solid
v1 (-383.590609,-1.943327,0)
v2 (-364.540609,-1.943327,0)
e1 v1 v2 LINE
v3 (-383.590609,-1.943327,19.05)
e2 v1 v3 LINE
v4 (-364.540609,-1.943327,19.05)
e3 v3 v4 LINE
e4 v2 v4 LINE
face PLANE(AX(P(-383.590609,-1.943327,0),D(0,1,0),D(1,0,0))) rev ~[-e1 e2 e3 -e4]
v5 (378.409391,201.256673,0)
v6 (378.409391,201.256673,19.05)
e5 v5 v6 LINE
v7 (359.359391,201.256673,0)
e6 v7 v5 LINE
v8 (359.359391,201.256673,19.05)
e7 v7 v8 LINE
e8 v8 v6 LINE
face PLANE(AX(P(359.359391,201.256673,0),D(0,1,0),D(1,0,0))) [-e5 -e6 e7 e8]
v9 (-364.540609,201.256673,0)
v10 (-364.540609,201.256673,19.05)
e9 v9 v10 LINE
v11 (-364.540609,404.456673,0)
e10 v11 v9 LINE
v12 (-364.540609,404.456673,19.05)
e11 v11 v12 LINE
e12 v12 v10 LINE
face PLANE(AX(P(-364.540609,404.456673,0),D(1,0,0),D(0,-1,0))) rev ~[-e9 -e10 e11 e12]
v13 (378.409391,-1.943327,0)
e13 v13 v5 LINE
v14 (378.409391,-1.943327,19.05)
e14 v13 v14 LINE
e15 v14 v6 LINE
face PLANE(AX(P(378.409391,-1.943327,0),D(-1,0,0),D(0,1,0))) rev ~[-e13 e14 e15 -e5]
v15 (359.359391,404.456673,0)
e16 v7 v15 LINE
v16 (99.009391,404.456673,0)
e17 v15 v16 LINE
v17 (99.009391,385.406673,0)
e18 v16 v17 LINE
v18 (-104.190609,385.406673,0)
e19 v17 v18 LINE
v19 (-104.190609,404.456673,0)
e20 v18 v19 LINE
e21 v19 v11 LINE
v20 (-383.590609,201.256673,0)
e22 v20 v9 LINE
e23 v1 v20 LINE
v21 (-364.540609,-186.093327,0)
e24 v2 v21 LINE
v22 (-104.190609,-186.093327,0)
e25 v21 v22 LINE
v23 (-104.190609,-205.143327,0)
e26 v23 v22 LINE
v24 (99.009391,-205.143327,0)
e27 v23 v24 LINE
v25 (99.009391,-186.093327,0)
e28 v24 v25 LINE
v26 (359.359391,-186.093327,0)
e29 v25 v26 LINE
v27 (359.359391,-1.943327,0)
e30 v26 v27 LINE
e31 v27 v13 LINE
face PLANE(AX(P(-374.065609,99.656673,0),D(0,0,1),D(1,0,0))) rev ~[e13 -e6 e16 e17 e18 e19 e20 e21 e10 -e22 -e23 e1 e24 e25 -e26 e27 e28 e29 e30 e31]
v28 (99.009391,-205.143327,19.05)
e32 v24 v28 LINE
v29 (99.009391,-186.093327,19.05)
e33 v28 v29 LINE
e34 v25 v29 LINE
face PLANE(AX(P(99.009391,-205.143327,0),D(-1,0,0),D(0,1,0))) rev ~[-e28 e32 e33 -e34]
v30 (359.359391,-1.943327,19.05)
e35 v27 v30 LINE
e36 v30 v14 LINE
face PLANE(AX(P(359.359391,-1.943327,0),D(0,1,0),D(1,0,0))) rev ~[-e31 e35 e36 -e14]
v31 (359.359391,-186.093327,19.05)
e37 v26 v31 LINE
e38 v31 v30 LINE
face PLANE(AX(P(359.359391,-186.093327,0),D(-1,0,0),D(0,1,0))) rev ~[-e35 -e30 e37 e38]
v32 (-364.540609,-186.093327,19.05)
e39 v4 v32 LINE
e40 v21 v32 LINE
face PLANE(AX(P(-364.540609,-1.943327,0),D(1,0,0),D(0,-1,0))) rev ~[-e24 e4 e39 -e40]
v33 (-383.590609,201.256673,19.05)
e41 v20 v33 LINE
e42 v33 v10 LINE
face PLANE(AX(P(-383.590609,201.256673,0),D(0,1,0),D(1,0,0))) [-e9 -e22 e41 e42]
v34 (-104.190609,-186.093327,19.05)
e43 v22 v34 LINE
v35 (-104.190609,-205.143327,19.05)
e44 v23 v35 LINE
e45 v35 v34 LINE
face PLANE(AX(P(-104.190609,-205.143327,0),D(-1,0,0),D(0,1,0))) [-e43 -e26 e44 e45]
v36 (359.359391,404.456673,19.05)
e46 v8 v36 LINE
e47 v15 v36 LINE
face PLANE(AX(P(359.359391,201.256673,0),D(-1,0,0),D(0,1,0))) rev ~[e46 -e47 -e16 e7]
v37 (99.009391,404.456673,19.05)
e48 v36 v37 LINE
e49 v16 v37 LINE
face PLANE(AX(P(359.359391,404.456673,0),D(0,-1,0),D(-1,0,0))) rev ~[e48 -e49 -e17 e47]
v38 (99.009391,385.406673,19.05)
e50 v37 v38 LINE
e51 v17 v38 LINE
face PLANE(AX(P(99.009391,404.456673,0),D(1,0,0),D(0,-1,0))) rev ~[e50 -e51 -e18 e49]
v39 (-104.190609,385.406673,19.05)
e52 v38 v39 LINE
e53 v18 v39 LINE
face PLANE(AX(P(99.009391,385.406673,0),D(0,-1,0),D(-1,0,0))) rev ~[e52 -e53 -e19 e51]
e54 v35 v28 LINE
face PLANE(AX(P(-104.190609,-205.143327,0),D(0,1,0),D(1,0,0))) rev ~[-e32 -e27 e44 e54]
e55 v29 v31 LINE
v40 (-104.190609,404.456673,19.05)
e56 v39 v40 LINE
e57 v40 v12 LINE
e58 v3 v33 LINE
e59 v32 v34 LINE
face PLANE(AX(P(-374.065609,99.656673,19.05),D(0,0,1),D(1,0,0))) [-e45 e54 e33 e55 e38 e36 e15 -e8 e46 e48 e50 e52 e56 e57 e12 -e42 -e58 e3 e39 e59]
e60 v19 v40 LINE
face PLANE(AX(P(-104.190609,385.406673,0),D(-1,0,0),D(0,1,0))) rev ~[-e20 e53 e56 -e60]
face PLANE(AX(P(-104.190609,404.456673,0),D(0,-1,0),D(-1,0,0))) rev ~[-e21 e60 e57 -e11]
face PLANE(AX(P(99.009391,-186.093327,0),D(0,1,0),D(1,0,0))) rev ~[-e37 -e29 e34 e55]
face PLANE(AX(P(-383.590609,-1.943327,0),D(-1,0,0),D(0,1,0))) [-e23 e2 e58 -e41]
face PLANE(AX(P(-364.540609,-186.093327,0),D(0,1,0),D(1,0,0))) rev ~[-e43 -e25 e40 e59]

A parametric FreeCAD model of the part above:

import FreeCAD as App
import Part
import Sketcher
from FreeCAD import Vector
Q = App.Units.Quantity


def add_polygon(sketch, points):
    """Adds a closed chain of lines whose ends are joined by coincident constraints."""
    first, n = sketch.GeometryCount, len(points)
    for a, b in zip(points, points[1:] + points[:1]):
        sketch.addGeometry(Part.LineSegment(App.Vector(*a, 0), App.Vector(*b, 0)), False)
    for i in range(n):
        sketch.addConstraint(Sketcher.Constraint("Coincident", first + i, 2, first + (i + 1) % n, 1))

doc = App.newDocument("Part")
params = doc.addObject("Spreadsheet::Sheet", "Params")
for row, (alias, value) in enumerate([
    ("sketch1_width", "8 in"),
    ("sketch1_width2", "0.75 in"),
    ("pad1_length", "0.75 in"),
], start=1):
    params.set(f"A{row}", alias)
    params.set(f"B{row}", "=" + value)
    params.setAlias(f"B{row}", alias)

body = doc.addObject("PartDesign::Body", "Body")

sketch1 = body.newObject("Sketcher::SketchObject", "Sketch")
sketch1.AttachmentSupport = (doc.getObject("XY_Plane"), [""])
sketch1.MapMode = "FlatFace"
add_polygon(sketch1, [(-383.590609, 201.256673), (-383.590609, -1.943327), (-364.540609, -1.943327), (-364.540609, -186.093327), (-104.190609, -186.093327), (-104.190609, -205.143327), (99.009391, -205.143327), (99.009391, -186.093327), (359.359391, -186.093327), (359.359391, -1.943327), (378.409391, -1.943327), (378.409391, 201.256673), (359.359391, 201.256673), (359.359391, 404.456673), (99.009391, 404.456673), (99.009391, 385.406673), (-104.190609, 385.406673), (-104.190609, 404.456673), (-364.540609, 404.456673), (-364.540609, 201.256673)])
sketch1.addConstraint([
    Sketcher.Constraint("Vertical", 0),
    Sketcher.Constraint("Horizontal", 1),
    Sketcher.Constraint("Vertical", 2),
    Sketcher.Constraint("Horizontal", 3),
    Sketcher.Constraint("Vertical", 4),
    Sketcher.Constraint("Horizontal", 5),
    Sketcher.Constraint("Vertical", 6),
    Sketcher.Constraint("Horizontal", 7),
    Sketcher.Constraint("Vertical", 8),
    Sketcher.Constraint("Horizontal", 9),
    Sketcher.Constraint("Vertical", 10),
    Sketcher.Constraint("Horizontal", 11),
    Sketcher.Constraint("Vertical", 12),
    Sketcher.Constraint("Horizontal", 13),
    Sketcher.Constraint("Vertical", 14),
    Sketcher.Constraint("Horizontal", 15),
    Sketcher.Constraint("Vertical", 16),
    Sketcher.Constraint("Horizontal", 17),
    Sketcher.Constraint("Vertical", 18),
    Sketcher.Constraint("Horizontal", 19),
    Sketcher.Constraint("Horizontal", 3, 2, 6, 2),
    Sketcher.Constraint("Horizontal", 1, 2, 8, 2),
    Sketcher.Constraint("Horizontal", 13, 2, 16, 2),
    Sketcher.Constraint("Horizontal", 11, 2, 18, 2),
    Sketcher.Constraint("Vertical", 8, 2, 11, 2),
    Sketcher.Constraint("Vertical", 6, 2, 13, 2),
    Sketcher.Constraint("Vertical", 4, 2, 15, 2),
    Sketcher.Constraint("Vertical", 2, 2, 17, 2),
    Sketcher.Constraint("Equal", 3, 7),
    Sketcher.Constraint("Equal", 1, 9),
    Sketcher.Constraint("Equal", 15, 0),
    Sketcher.Constraint("Equal", 19, 4),
    Sketcher.Constraint("Equal", 10, 12),
    Sketcher.Constraint("Equal", 6, 14),
    Sketcher.Constraint("DistanceX", 5, 1, 5, 2, Q("8 in")),
    Sketcher.Constraint("DistanceX", 0, 2, 3, 2, Q("11 in")),
    Sketcher.Constraint("DistanceY", 4, 2, 1, 2, Q("8 in")),
    Sketcher.Constraint("DistanceX", 1, 1, 1, 2, Q("0.75 in")),
    Sketcher.Constraint("DistanceX", 0, 2, -1, 1, Q("383.590609 mm")),
    Sketcher.Constraint("DistanceY", 0, 2, -1, 1, Q("1.943327 mm")),
])
sketch1.setExpression("Constraints[54]", "Params.sketch1_width")
sketch1.setExpression("Constraints[57]", "Params.sketch1_width2")
pad1 = body.newObject("PartDesign::Pad", "Pad")
pad1.Profile = sketch1
pad1.setExpression("Length", "Params.pad1_length")

doc.recompute()
